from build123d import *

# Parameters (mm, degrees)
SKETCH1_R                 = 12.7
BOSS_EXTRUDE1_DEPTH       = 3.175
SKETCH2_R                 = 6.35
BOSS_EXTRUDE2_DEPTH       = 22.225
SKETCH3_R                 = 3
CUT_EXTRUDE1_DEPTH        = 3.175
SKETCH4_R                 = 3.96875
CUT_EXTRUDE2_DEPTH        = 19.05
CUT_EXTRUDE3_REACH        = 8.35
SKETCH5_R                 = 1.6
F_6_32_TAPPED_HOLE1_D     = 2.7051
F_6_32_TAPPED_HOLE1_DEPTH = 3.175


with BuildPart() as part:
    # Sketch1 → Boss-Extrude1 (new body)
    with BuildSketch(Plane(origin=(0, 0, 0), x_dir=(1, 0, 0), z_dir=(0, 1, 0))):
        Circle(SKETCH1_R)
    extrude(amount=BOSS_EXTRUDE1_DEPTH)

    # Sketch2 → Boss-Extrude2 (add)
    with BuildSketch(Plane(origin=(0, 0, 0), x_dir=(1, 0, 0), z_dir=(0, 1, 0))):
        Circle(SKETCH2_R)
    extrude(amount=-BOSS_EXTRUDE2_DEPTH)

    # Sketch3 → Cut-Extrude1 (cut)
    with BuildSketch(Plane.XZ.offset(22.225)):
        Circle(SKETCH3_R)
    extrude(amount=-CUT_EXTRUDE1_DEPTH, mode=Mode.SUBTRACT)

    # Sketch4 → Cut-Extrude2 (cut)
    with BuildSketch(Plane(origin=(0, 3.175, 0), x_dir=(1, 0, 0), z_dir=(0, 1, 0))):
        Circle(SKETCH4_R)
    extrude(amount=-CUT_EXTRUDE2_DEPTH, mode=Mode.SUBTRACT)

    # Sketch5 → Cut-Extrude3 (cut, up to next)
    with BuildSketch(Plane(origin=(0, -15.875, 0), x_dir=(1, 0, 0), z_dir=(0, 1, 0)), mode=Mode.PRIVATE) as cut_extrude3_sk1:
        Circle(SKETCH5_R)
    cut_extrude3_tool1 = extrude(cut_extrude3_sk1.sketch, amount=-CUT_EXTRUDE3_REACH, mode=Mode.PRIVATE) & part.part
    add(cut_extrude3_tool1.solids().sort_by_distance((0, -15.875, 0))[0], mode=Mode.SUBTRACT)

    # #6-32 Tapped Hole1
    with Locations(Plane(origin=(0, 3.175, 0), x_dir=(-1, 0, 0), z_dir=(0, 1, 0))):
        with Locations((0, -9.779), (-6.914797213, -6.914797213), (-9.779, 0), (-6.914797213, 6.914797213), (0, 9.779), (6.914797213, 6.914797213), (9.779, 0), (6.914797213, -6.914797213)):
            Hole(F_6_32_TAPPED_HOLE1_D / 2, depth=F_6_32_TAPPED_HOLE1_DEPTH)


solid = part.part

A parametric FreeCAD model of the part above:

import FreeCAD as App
import Part
import Sketcher

V = App.Vector
Q = App.Units.Quantity

doc = App.newDocument("Part")
body = doc.addObject("PartDesign::Body", "Body")

# Sketch on XZ plane
sketch1 = doc.addObject("Sketcher::SketchObject", "Sketch")
body.addObject(sketch1)
sketch1.AttachmentSupport = (doc.XZ_Plane, [""])
sketch1.MapMode = "FlatFace"
sketch1.addGeometry(Part.Circle(V(0, 0, 0), V(0, 0, 1), 13), False)
sketch1.addConstraint([
    Sketcher.Constraint("Coincident", 0, 3, -1, 1),
    Sketcher.Constraint("Diameter", 0, Q("1 in")),
])
pad1 = doc.addObject("PartDesign::Pad", "Pad")
body.addObject(pad1)
pad1.Profile = sketch1
pad1.Length = Q("0.125 in")
pad1.Reversed = True

# Sketch on XZ plane
sketch2 = doc.addObject("Sketcher::SketchObject", "Sketch001")
body.addObject(sketch2)
sketch2.AttachmentSupport = (doc.XZ_Plane, [""])
sketch2.MapMode = "FlatFace"
sketch2.addGeometry(Part.Circle(V(0, 0, 0), V(0, 0, 1), 6), False)
sketch2.addConstraint([
    Sketcher.Constraint("Coincident", 0, 3, -1, 1),
    Sketcher.Constraint("Diameter", 0, Q("0.5 in")),
])
pad2 = doc.addObject("PartDesign::Pad", "Pad001")
body.addObject(pad2)
pad2.Profile = sketch2
pad2.Length = Q("0.875 in")

# Sketch on XZ plane
sketch3 = doc.addObject("Sketcher::SketchObject", "Sketch002")
body.addObject(sketch3)
sketch3.AttachmentSupport = (doc.XZ_Plane, [""])
sketch3.MapMode = "FlatFace"
sketch3.AttachmentOffset = App.Placement(V(0, 0, 0.875 * 25.4), App.Rotation())
sketch3.addGeometry(Part.Circle(V(0, 0, 0), V(0, 0, 1), 3), False)
sketch3.addConstraint([
    Sketcher.Constraint("Coincident", 0, 3, -1, 1),
    Sketcher.Constraint("Diameter", 0, 6.0),
])
pocket1 = doc.addObject("PartDesign::Pocket", "Pocket")
body.addObject(pocket1)
pocket1.Profile = sketch3
pocket1.Length = Q("0.125 in")

# Sketch on XZ plane
sketch4 = doc.addObject("Sketcher::SketchObject", "Sketch003")
body.addObject(sketch4)
sketch4.AttachmentSupport = (doc.XZ_Plane, [""])
sketch4.MapMode = "FlatFace"
sketch4.AttachmentOffset = App.Placement(V(0, 0, -0.125 * 25.4), App.Rotation())
sketch4.addGeometry(Part.Circle(V(0, 0, 0), V(0, 0, 1), 4), False)
sketch4.addConstraint([
    Sketcher.Constraint("Coincident", 0, 3, -1, 1),
    Sketcher.Constraint("Diameter", 0, Q("0.3125 in")),
])
pocket2 = doc.addObject("PartDesign::Pocket", "Pocket001")
body.addObject(pocket2)
pocket2.Profile = sketch4
pocket2.Length = Q("0.75 in")
pocket2.Reversed = True

# Sketch on XZ plane
sketch5 = doc.addObject("Sketcher::SketchObject", "Sketch004")
body.addObject(sketch5)
sketch5.AttachmentSupport = (doc.XZ_Plane, [""])
sketch5.MapMode = "FlatFace"
sketch5.AttachmentOffset = App.Placement(V(0, 0, 0.625 * 25.4), App.Rotation())
sketch5.addGeometry(Part.Circle(V(0, 0, 0), V(0, 0, 1), 1.6), False)
sketch5.addConstraint([
    Sketcher.Constraint("Coincident", 0, 3, -1, 1),
    Sketcher.Constraint("Diameter", 0, 3.2),
])
pocket3 = doc.addObject("PartDesign::Pocket", "Pocket002")
body.addObject(pocket3)
pocket3.Profile = sketch5
pocket3.Type = "UpToFirst"
pocket3.Reversed = True

# Sketch on XZ plane
sketch6 = doc.addObject("Sketcher::SketchObject", "Sketch005")
body.addObject(sketch6)
sketch6.AttachmentSupport = (doc.XZ_Plane, [""])
sketch6.MapMode = "FlatFace"
sketch6.AttachmentOffset = App.Placement(V(0, 0, -0.125 * 25.4), App.Rotation())
sketch6.addGeometry([
    Part.Circle(V(0, -9.8, 0), V(0, 0, 1), 1.4),  # 0
    Part.Circle(V(6.9, -6.9, 0), V(0, 0, 1), 1.4),  # 1
    Part.Circle(V(9.8, 0, 0), V(0, 0, 1), 1.4),  # 2
    Part.Circle(V(6.9, 6.9, 0), V(0, 0, 1), 1.4),  # 3
    Part.Circle(V(0, 9.8, 0), V(0, 0, 1), 1.4),  # 4
    Part.Circle(V(-6.9, 6.9, 0), V(0, 0, 1), 1.4),  # 5
    Part.Circle(V(-9.8, 0, 0), V(0, 0, 1), 1.4),  # 6
    Part.Circle(V(-6.9, -6.9, 0), V(0, 0, 1), 1.4),  # 7
], False)
sketch6.addConstraint([
    Sketcher.Constraint("Equal", 0, 1),
    Sketcher.Constraint("Equal", 1, 2),
    Sketcher.Constraint("Equal", 2, 3),
    Sketcher.Constraint("Equal", 3, 4),
    Sketcher.Constraint("Equal", 4, 5),
    Sketcher.Constraint("Equal", 5, 6),
    Sketcher.Constraint("Equal", 6, 7),
    Sketcher.Constraint("Symmetric", 0, 3, 4, 3, -1, 1),
    Sketcher.Constraint("Symmetric", 1, 3, 5, 3, -1, 1),
    Sketcher.Constraint("Symmetric", 2, 3, 6, 3, -1, 1),
    Sketcher.Constraint("Symmetric", 3, 3, 7, 3, -1, 1),
    Sketcher.Constraint("Symmetric", 3, 3, 5, 3, -2),
    Sketcher.Constraint("PointOnObject", 0, 3, -2),
    Sketcher.Constraint("PointOnObject", 2, 3, -1),
    Sketcher.Constraint("Diameter", 0, Q("0.1065 in")),
    Sketcher.Constraint("DistanceY", 0, 3, 4, 3, Q("0.77 in")),
    Sketcher.Constraint("DistanceX", -1, 1, 2, 3, Q("0.385 in")),
    Sketcher.Constraint("DistanceX", -1, 1, 1, 3, 6.914797),
    Sketcher.Constraint("DistanceY", 1, 3, -1, 1, 6.914797),
])
doc.recompute()
hole = doc.addObject("PartDesign::Hole", "Hole")
body.addObject(hole)
hole.Profile = sketch6
hole.ThreadType = "None"
hole.Diameter = Q("0.1065 in")
hole.DepthType = "Dimension"
hole.Depth = Q("0.125 in")
hole.DrillPoint = "Flat"
hole.Reversed = True

doc.recompute()
